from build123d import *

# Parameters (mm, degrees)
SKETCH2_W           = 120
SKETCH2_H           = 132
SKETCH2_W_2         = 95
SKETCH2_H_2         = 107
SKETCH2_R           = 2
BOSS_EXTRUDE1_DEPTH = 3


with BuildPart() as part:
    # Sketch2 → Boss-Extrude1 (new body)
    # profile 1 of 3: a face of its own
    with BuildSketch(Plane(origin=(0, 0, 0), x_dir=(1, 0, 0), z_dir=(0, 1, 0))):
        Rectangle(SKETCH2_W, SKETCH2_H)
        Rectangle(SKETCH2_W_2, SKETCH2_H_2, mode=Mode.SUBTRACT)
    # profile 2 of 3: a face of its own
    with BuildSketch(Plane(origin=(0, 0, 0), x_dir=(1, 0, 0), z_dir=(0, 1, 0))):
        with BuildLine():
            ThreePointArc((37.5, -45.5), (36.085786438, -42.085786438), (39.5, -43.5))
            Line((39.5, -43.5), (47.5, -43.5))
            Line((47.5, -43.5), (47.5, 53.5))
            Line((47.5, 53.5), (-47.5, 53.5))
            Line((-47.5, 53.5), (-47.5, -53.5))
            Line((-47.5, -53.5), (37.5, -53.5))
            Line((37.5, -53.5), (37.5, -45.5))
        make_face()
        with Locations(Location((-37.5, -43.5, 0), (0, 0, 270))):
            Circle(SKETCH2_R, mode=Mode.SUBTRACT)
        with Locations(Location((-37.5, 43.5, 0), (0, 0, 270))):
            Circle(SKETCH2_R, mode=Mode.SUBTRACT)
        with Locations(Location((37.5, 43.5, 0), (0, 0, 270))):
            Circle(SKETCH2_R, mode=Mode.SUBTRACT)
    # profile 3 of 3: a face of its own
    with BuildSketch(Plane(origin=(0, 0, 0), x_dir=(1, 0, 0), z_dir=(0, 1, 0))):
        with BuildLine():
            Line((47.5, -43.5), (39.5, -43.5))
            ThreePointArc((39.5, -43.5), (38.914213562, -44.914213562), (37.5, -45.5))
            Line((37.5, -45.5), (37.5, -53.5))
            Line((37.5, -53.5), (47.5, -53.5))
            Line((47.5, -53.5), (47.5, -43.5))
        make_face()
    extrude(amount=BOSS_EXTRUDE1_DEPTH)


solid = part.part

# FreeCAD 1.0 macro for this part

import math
import FreeCAD as App
import Part
import Sketcher


def add_polygon(sketch, points):
    """Adds a closed chain of lines whose ends are joined by coincident constraints."""
    first, n = sketch.GeometryCount, len(points)
    for a, b in zip(points, points[1:] + points[:1]):
        sketch.addGeometry(Part.LineSegment(App.Vector(*a, 0), App.Vector(*b, 0)), False)
    for i in range(n):
        sketch.addConstraint(Sketcher.Constraint("Coincident", first + i, 2, first + (i + 1) % n, 1))

doc = App.newDocument("Part")
params = doc.addObject("Spreadsheet::Sheet", "Params")
for row, (alias, value) in enumerate([
    ("sketch1_diameter", "4 mm"),
    ("sketch1_width", "120 mm"),
    ("sketch1_height", "132 mm"),
    ("pad1_length", "3 mm"),
], start=1):
    params.set(f"A{row}", alias)
    params.set(f"B{row}", "=" + value)
    params.setAlias(f"B{row}", alias)

body = doc.addObject("PartDesign::Body", "Body")

# Sketch on XZ plane
sketch1 = doc.addObject("Sketcher::SketchObject", "Sketch")
body.addObject(sketch1)
sketch1.AttachmentSupport = (doc.XZ_Plane, [""])
sketch1.MapMode = "FlatFace"
add_polygon(sketch1, [(-60, -66), (-60, 66), (60, 66), (60, -66)])  # lines 0-3
sketch1.addGeometry(Part.ArcOfCircle(Part.Circle(App.Vector(37.5, 43.5, 0), App.Vector(0, 0, 1), 2), math.radians(90), math.radians(360)), False)  # 4
sketch1.addGeometry(Part.ArcOfCircle(Part.Circle(App.Vector(37.5, 43.5, 0), App.Vector(0, 0, 1), 2), math.radians(0), math.radians(90)), False)  # 5
sketch1.addGeometry(Part.Circle(App.Vector(37.5, -43.5, 0), App.Vector(0, 0, 1), 2), False)  # 6
sketch1.addGeometry(Part.Circle(App.Vector(-37.5, -43.5, 0), App.Vector(0, 0, 1), 2), False)  # 7
sketch1.addGeometry(Part.Circle(App.Vector(-37.5, 43.5, 0), App.Vector(0, 0, 1), 2), False)  # 8
sketch1.addConstraint([
    Sketcher.Constraint("Tangent", 4, 1, 5, 2),
    Sketcher.Constraint("Coincident", 5, 1, 4, 2),
    Sketcher.Constraint("Vertical", 0),
    Sketcher.Constraint("Horizontal", 1),
    Sketcher.Constraint("Vertical", 2),
    Sketcher.Constraint("Horizontal", 3),
    Sketcher.Constraint("Equal", 5, 6),
    Sketcher.Constraint("Equal", 6, 7),
    Sketcher.Constraint("Equal", 7, 8),
    Sketcher.Constraint("Symmetric", 4, 3, 7, 3, -1, 1),
    Sketcher.Constraint("Symmetric", 6, 3, 8, 3, -1, 1),
    Sketcher.Constraint("Symmetric", 0, 2, 2, 2, -1, 1),
    Sketcher.Constraint("Symmetric", 6, 3, 7, 3, -2),
    Sketcher.Constraint("Horizontal", 8, 3, 5, 1),
    Sketcher.Constraint("Vertical", 6, 3, 4, 1),
    Sketcher.Constraint("Diameter", 6, 4.0),
    Sketcher.Constraint("DistanceX", 1, 1, 1, 2, 120.0),
    Sketcher.Constraint("DistanceY", 0, 1, 0, 2, 132.0),
    Sketcher.Constraint("DistanceY", 6, 3, 5, 3, 87.0),
    Sketcher.Constraint("DistanceX", 7, 3, 6, 3, 75.0),
])
sketch1.setExpression("Constraints[19]", "Params.sketch1_diameter")
sketch1.setExpression("Constraints[20]", "Params.sketch1_width")
sketch1.setExpression("Constraints[21]", "Params.sketch1_height")
pad1 = doc.addObject("PartDesign::Pad", "Pad")
body.addObject(pad1)
pad1.Profile = sketch1
pad1.setExpression("Length", "Params.pad1_length")
pad1.Reversed = True

doc.recompute()
